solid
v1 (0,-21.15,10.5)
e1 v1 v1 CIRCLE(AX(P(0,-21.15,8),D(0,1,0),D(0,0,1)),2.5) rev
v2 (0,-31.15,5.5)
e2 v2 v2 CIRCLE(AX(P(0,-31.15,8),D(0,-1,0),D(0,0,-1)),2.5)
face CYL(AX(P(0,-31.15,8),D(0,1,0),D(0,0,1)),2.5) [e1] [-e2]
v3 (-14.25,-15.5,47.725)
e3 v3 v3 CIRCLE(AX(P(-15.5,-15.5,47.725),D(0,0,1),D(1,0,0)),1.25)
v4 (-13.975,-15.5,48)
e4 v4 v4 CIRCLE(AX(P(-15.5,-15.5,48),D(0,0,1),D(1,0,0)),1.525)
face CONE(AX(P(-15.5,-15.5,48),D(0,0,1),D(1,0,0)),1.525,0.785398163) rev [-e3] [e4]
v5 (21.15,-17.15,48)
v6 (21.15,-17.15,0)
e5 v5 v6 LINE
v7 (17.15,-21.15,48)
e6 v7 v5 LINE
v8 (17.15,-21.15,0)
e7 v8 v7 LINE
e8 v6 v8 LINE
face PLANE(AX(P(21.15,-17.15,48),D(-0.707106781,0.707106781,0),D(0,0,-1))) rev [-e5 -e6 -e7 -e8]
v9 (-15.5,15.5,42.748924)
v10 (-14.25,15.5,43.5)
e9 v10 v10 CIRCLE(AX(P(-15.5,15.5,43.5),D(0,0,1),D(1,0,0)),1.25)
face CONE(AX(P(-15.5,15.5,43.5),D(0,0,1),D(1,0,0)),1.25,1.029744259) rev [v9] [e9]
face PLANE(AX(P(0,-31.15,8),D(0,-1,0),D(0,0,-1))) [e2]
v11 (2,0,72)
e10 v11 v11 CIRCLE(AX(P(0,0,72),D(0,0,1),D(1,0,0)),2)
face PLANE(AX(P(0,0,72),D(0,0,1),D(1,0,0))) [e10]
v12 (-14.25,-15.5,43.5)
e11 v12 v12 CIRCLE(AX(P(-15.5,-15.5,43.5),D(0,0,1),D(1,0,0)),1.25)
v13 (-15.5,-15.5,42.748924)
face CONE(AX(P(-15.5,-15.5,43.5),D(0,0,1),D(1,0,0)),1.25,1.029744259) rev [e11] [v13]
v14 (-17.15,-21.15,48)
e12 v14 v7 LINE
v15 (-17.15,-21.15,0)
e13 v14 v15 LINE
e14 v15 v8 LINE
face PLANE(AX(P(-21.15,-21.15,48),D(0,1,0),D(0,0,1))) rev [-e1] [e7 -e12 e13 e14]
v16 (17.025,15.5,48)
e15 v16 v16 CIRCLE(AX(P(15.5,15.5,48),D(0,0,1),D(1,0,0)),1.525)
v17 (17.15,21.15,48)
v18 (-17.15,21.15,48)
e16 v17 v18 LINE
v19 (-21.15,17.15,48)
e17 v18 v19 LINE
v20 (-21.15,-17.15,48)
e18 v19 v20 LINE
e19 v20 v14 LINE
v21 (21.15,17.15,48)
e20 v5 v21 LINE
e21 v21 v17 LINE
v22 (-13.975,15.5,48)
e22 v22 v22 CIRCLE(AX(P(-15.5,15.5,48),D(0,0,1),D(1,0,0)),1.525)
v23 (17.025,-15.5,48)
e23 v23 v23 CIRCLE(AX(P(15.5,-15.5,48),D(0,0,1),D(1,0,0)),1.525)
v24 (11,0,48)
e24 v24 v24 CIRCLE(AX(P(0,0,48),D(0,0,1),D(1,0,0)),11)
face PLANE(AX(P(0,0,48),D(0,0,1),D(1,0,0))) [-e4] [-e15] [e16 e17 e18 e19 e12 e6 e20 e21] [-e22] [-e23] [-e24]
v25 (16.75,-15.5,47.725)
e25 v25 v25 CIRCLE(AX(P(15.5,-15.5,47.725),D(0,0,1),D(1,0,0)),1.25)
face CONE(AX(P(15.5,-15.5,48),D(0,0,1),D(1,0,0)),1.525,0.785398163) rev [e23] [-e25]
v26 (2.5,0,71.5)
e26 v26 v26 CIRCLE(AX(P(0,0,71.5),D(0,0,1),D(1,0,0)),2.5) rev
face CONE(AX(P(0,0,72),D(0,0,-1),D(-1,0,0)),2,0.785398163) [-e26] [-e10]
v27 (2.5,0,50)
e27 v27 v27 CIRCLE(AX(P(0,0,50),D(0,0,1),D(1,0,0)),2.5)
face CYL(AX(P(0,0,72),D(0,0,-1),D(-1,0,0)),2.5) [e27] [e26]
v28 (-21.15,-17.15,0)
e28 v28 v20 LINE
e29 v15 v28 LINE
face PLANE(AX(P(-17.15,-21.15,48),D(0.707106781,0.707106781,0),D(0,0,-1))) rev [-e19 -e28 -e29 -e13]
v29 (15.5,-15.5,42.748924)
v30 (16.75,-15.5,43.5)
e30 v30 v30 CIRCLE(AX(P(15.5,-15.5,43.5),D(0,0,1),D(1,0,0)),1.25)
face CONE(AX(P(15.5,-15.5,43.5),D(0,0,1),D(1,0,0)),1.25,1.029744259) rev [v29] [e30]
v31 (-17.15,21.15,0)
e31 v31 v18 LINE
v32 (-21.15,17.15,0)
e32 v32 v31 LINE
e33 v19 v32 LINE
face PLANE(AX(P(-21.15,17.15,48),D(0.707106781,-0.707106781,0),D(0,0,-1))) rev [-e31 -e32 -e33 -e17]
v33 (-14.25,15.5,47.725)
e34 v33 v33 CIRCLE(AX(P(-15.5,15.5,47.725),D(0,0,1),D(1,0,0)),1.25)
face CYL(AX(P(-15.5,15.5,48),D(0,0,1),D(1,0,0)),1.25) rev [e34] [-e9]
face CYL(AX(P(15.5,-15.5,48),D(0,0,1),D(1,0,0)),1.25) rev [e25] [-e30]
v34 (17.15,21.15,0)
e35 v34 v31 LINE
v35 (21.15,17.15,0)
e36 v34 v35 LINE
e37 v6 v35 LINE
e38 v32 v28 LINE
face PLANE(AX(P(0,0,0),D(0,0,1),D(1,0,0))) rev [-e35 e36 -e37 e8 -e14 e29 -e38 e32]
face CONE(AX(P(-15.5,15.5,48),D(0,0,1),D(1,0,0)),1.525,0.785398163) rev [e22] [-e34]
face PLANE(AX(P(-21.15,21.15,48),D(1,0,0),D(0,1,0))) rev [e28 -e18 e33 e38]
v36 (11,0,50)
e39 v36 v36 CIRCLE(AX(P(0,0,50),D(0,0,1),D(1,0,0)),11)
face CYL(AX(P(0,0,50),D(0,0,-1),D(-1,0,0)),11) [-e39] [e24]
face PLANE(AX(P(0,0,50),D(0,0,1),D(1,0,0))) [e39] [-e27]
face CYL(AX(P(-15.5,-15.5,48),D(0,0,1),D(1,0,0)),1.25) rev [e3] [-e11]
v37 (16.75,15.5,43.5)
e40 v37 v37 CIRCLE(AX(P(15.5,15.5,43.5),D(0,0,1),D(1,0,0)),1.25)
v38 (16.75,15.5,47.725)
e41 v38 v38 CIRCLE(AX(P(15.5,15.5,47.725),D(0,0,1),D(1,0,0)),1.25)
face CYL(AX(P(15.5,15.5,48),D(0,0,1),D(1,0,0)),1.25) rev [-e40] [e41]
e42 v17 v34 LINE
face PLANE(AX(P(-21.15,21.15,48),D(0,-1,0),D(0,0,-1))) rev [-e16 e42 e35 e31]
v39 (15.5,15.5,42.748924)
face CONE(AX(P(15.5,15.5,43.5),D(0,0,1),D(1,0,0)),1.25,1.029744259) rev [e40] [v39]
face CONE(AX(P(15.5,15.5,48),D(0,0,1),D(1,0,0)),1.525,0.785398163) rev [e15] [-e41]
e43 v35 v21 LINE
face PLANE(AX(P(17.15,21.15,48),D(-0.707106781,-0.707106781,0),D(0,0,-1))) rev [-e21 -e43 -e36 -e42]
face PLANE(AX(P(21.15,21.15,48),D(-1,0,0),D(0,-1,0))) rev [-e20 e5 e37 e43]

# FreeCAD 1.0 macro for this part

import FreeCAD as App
import Part
import Sketcher
from FreeCAD import Vector
Q = App.Units.Quantity


def edges_at(feature, points):
    """Names of the edges that pass closest to the given points."""
    edges = feature.Shape.Edges
    near = lambda p: min(range(len(edges)), key=lambda i: edges[i].distToShape(Part.Vertex(*p))[0])
    return sorted({f"Edge{near(p) + 1}" for p in points})

doc = App.newDocument("Part")
body = doc.addObject("PartDesign::Body", "Body")

sketch1 = body.newObject("Sketcher::SketchObject", "Sketch")
sketch1.AttachmentSupport = (doc.getObject("XY_Plane"), [""])
sketch1.MapMode = "FlatFace"
sketch1.addGeometry([
    Part.LineSegment(Vector(-21, 21, 0), Vector(-21, -21, 0)),
    Part.LineSegment(Vector(-21, -21, 0), Vector(21, -21, 0)),
    Part.LineSegment(Vector(21, -21, 0), Vector(21, 21, 0)),
    Part.LineSegment(Vector(21, 21, 0), Vector(-21, 21, 0)),
], False)
sketch1.addConstraint([
    Sketcher.Constraint("Coincident", 0, 2, 1, 1),
    Sketcher.Constraint("Coincident", 1, 2, 2, 1),
    Sketcher.Constraint("Coincident", 2, 2, 3, 1),
    Sketcher.Constraint("Coincident", 3, 2, 0, 1),
    Sketcher.Constraint("Vertical", 0),
    Sketcher.Constraint("Horizontal", 1),
    Sketcher.Constraint("Vertical", 2),
    Sketcher.Constraint("Horizontal", 3),
    Sketcher.Constraint("Symmetric", 0, 2, 2, 2, -1, 1),
    Sketcher.Constraint("Equal", 3, 0),
    Sketcher.Constraint("DistanceX", 1, 1, 1, 2, Q("42.3 mm")),
])
pad1 = body.newObject("PartDesign::Pad", "Pad")
pad1.Profile = sketch1
pad1.Length = 48

sketch2 = body.newObject("Sketcher::SketchObject", "Sketch001")
sketch2.AttachmentSupport = (doc.getObject("XY_Plane"), [""])
sketch2.MapMode = "FlatFace"
sketch2.AttachmentOffset = App.Placement(Vector(0, 0, 48), App.Rotation())
sketch2.addGeometry(Part.Circle(Vector(0, 0, 0), Vector(0, 0, 1), 11), False)
sketch2.addConstraint([
    Sketcher.Constraint("Coincident", 0, 3, -1, 1),
    Sketcher.Constraint("Diameter", 0, Q("22 mm")),
])
pad2 = body.newObject("PartDesign::Pad", "Pad001")
pad2.Profile = sketch2
pad2.Length = 2

sketch3 = body.newObject("Sketcher::SketchObject", "Sketch002")
sketch3.AttachmentSupport = (doc.getObject("XY_Plane"), [""])
sketch3.MapMode = "FlatFace"
sketch3.AttachmentOffset = App.Placement(Vector(0, 0, 50), App.Rotation())
sketch3.addGeometry(Part.Circle(Vector(0, 0, 0), Vector(0, 0, 1), 2.5), False)
sketch3.addConstraint([
    Sketcher.Constraint("Coincident", 0, 3, -1, 1),
    Sketcher.Constraint("Diameter", 0, Q("5 mm")),
])
pad3 = body.newObject("PartDesign::Pad", "Pad002")
pad3.Profile = sketch3
pad3.Length = 22
doc.recompute()

chamfer = body.newObject("PartDesign::Chamfer", "Chamfer")
chamfer.Base = (pad3, edges_at(pad3, [(-2.5, 0, 72)]))
chamfer.Size = 0.5
doc.recompute()

chamfer2 = body.newObject("PartDesign::Chamfer", "Chamfer001")
chamfer2.Base = (chamfer, edges_at(chamfer, [
    (-21.15, 21.15, 24),
    (21.15, 21.15, 24),
    (21.15, -21.15, 24),
    (-21.15, -21.15, 24),
]))
chamfer2.Size = 4

sketch4 = body.newObject("Sketcher::SketchObject", "Sketch003")
sketch4.AttachmentSupport = (doc.getObject("XY_Plane"), [""])
sketch4.MapMode = "FlatFace"
sketch4.AttachmentOffset = App.Placement(Vector(0, 0, 48), App.Rotation())
sketch4.addGeometry([
    Part.Circle(Vector(-15.5, 15.5, 0), Vector(0, 0, 1), 1.2),
    Part.Circle(Vector(15.5, 15.5, 0), Vector(0, 0, 1), 1.2),
    Part.Circle(Vector(15.5, -15.5, 0), Vector(0, 0, 1), 1.2),
    Part.Circle(Vector(-15.5, -15.5, 0), Vector(0, 0, 1), 1.2),
], False)
sketch4.addConstraint([
    Sketcher.Constraint("Equal", 0, 1),
    Sketcher.Constraint("Equal", 1, 2),
    Sketcher.Constraint("Equal", 2, 3),
    Sketcher.Constraint("Symmetric", 0, 3, 2, 3, -1, 1),
    Sketcher.Constraint("Symmetric", 1, 3, 3, 3, -1, 1),
    Sketcher.Constraint("Symmetric", 0, 3, 1, 3, -2),
    Sketcher.Constraint("Diameter", 0, Q("2.5 mm")),
    Sketcher.Constraint("DistanceX", 0, 3, 1, 3, Q("31 mm")),
    Sketcher.Constraint("DistanceY", 2, 3, 1, 3, Q("31 mm")),
])
doc.recompute()
hole = body.newObject("PartDesign::Hole", "Hole")
hole.Profile = sketch4
hole.ThreadType = "None"
hole.Diameter = 2.5
hole.DepthType = "Dimension"
hole.Depth = 4.5
hole.DrillPoint = "Angled"
hole.DrillPointAngle = 118
hole.HoleCutType = "Countersink"
hole.HoleCutDiameter = 3.05
hole.HoleCutCountersinkAngle = 90

sketch5 = body.newObject("Sketcher::SketchObject", "Sketch004")
sketch5.AttachmentSupport = (doc.getObject("XZ_Plane"), [""])
sketch5.MapMode = "FlatFace"
sketch5.AttachmentOffset = App.Placement(Vector(0, 0, 21.15), App.Rotation())
sketch5.addGeometry(Part.Circle(Vector(0, 8, 0), Vector(0, 0, 1), 2.5), False)
sketch5.addConstraint([
    Sketcher.Constraint("PointOnObject", 0, 3, -2),
    Sketcher.Constraint("Diameter", 0, Q("5 mm")),
    Sketcher.Constraint("DistanceY", -1, 1, 0, 3, Q("8 mm")),
])
pad4 = body.newObject("PartDesign::Pad", "Pad003")
pad4.Profile = sketch5
pad4.Length = 10

doc.recompute()
